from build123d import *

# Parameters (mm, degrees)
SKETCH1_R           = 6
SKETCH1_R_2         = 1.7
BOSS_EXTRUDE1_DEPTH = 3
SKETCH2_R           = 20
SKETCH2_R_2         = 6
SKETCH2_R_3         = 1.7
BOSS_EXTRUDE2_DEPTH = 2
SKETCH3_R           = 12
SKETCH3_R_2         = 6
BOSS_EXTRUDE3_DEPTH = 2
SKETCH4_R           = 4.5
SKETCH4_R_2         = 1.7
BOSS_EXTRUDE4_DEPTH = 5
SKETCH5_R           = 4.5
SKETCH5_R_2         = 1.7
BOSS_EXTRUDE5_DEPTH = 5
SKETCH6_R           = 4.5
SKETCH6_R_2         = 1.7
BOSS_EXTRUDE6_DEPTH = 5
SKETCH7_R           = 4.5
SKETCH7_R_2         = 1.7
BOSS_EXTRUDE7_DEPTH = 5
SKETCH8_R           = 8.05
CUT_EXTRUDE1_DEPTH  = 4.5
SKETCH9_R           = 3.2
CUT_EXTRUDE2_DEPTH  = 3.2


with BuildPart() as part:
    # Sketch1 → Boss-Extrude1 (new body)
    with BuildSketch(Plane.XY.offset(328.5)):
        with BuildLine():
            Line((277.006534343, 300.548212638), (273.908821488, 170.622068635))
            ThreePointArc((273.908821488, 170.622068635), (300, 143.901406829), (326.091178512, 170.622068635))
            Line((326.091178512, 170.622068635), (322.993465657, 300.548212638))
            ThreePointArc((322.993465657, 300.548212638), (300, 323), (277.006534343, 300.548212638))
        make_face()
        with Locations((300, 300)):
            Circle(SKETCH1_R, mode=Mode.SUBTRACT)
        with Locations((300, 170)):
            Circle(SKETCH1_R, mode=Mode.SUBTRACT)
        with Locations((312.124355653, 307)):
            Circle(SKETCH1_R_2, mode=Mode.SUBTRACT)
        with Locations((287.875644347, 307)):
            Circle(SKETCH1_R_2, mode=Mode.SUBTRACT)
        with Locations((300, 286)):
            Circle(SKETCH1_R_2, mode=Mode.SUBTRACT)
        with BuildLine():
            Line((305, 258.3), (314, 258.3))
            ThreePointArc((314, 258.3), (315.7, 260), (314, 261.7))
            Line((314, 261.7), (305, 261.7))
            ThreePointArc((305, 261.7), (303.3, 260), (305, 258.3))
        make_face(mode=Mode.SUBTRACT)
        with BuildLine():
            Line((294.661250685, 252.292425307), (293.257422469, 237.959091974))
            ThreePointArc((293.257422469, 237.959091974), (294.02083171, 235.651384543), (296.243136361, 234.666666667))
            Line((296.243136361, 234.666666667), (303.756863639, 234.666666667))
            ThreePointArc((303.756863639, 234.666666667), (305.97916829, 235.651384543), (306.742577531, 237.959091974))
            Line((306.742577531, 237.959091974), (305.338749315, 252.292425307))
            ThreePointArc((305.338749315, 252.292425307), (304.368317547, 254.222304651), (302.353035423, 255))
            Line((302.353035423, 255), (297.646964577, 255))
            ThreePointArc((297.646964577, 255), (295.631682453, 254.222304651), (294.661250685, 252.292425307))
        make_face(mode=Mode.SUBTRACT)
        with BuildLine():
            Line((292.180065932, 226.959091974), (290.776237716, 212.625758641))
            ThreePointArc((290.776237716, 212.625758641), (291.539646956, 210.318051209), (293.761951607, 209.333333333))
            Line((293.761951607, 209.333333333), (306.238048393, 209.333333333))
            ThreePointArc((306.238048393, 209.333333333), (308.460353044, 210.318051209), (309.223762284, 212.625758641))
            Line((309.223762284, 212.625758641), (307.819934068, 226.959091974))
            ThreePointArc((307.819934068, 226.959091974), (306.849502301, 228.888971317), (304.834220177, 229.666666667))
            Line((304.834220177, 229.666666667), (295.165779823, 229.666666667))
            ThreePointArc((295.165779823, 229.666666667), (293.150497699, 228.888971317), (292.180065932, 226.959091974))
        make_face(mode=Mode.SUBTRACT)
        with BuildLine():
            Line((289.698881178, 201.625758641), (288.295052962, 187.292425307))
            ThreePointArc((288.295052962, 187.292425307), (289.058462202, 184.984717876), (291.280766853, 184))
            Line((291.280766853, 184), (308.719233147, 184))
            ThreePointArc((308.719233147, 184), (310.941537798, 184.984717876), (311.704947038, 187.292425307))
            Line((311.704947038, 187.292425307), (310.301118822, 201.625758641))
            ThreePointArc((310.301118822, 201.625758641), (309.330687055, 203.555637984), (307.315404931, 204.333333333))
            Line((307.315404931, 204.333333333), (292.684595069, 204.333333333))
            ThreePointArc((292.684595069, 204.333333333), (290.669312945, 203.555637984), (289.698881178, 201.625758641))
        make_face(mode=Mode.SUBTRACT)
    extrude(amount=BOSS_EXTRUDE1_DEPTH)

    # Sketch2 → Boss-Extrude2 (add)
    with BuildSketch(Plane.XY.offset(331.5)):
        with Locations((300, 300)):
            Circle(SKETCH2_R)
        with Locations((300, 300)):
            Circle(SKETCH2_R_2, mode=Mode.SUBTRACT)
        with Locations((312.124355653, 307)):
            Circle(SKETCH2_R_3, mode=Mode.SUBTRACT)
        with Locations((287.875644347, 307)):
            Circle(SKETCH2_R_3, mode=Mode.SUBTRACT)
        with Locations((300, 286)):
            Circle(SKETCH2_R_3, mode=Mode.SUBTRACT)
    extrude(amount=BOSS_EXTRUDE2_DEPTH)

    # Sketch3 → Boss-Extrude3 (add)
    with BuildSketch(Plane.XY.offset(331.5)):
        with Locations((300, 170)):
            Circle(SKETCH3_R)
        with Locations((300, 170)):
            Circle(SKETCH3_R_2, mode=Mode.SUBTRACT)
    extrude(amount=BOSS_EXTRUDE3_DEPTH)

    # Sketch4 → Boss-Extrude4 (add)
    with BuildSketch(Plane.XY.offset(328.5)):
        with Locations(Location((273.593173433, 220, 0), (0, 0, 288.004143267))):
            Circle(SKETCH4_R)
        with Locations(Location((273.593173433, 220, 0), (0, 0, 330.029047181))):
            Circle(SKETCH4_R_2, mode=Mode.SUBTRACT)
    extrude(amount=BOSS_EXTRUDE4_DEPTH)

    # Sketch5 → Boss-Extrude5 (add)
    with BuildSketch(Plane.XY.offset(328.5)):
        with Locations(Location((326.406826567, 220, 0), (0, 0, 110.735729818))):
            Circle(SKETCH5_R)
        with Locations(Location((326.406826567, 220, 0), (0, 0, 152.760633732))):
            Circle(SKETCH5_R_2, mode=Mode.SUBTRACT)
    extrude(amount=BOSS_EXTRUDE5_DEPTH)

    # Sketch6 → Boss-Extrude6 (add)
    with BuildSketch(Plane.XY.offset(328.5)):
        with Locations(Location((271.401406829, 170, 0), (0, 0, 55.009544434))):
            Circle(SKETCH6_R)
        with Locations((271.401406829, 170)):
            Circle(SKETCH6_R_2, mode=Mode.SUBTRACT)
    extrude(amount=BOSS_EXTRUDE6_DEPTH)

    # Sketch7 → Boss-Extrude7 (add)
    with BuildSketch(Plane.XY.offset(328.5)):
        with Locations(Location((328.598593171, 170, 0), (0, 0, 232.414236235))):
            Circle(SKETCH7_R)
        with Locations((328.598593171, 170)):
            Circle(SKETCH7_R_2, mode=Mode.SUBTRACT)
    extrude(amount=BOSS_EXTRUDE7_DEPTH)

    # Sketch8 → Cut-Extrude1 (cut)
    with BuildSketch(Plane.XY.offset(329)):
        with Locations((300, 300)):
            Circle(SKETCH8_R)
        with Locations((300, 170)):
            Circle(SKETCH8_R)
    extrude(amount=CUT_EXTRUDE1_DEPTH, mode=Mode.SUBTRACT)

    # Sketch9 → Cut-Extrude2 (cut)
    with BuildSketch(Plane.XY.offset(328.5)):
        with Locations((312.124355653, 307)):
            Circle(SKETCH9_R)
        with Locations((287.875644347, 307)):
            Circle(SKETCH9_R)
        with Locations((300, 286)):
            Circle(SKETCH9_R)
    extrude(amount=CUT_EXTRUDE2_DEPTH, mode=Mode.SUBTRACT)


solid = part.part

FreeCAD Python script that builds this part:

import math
import FreeCAD as App
import Part
import Sketcher

V = App.Vector
Q = App.Units.Quantity

doc = App.newDocument("Part")
body = doc.addObject("PartDesign::Body", "Body")

# Sketch on XY plane
sketch1 = body.newObject("Sketcher::SketchObject", "Sketch")
sketch1.AttachmentSupport = (doc.getObject("XY_Plane"), [""])
sketch1.MapMode = "FlatFace"
sketch1.AttachmentOffset = App.Placement(V(0, 0, 328.5), App.Rotation())
sketch1.addGeometry([
    Part.LineSegment(V(277, 300.5, 0), V(273.9, 170.6, 0)),  # 0
    Part.ArcOfCircle(Part.Circle(V(300, 170, 0), V(0, 0, 1), 26.1), math.radians(179), math.radians(361)),  # 1
    Part.LineSegment(V(326.1, 170.6, 0), V(323, 300.5, 0)),  # 2
    Part.ArcOfCircle(Part.Circle(V(300, 300, 0), V(0, 0, 1), 23), math.radians(1), math.radians(179)),  # 3
    Part.Circle(V(300, 170, 0), V(0, 0, 1), 6),  # 4
    Part.LineSegment(V(288.3, 187.3, 0), V(289.7, 201.6, 0)),  # 5
    Part.ArcOfCircle(Part.Circle(V(292.7, 201.3, 0), V(0, 0, 1), 3), math.radians(90), math.radians(174)),  # 6
    Part.LineSegment(V(292.7, 204.3, 0), V(307.3, 204.3, 0)),  # 7
    Part.ArcOfCircle(Part.Circle(V(307.3, 201.3, 0), V(0, 0, 1), 3), math.radians(6), math.radians(90)),  # 8
    Part.LineSegment(V(310.3, 201.6, 0), V(311.7, 187.3, 0)),  # 9
    Part.ArcOfCircle(Part.Circle(V(308.7, 187, 0), V(0, 0, 1), 3), math.radians(-90), math.radians(6)),  # 10
    Part.LineSegment(V(308.7, 184, 0), V(291.3, 184, 0)),  # 11
    Part.ArcOfCircle(Part.Circle(V(291.3, 187, 0), V(0, 0, 1), 3), math.radians(174), math.radians(270)),  # 12
    Part.LineSegment(V(290.8, 212.6, 0), V(292.2, 227, 0)),  # 13
    Part.ArcOfCircle(Part.Circle(V(295.2, 226.7, 0), V(0, 0, 1), 3), math.radians(90), math.radians(174)),  # 14
    Part.LineSegment(V(295.2, 229.7, 0), V(304.8, 229.7, 0)),  # 15
    Part.ArcOfCircle(Part.Circle(V(304.8, 226.7, 0), V(0, 0, 1), 3), math.radians(6), math.radians(90)),  # 16
    Part.LineSegment(V(307.8, 227, 0), V(309.2, 212.6, 0)),  # 17
    Part.ArcOfCircle(Part.Circle(V(306.2, 212.3, 0), V(0, 0, 1), 3), math.radians(-90), math.radians(6)),  # 18
    Part.LineSegment(V(306.2, 209.3, 0), V(293.8, 209.3, 0)),  # 19
    Part.ArcOfCircle(Part.Circle(V(293.8, 212.3, 0), V(0, 0, 1), 3), math.radians(174), math.radians(270)),  # 20
    Part.LineSegment(V(293.3, 238, 0), V(294.7, 252.3, 0)),  # 21
    Part.ArcOfCircle(Part.Circle(V(297.6, 252, 0), V(0, 0, 1), 3), math.radians(90), math.radians(174)),  # 22
    Part.LineSegment(V(297.6, 255, 0), V(302.4, 255, 0)),  # 23
    Part.ArcOfCircle(Part.Circle(V(302.4, 252, 0), V(0, 0, 1), 3), math.radians(6), math.radians(90)),  # 24
    Part.LineSegment(V(305.3, 252.3, 0), V(306.7, 238, 0)),  # 25
    Part.ArcOfCircle(Part.Circle(V(303.8, 237.7, 0), V(0, 0, 1), 3), math.radians(-90), math.radians(6)),  # 26
    Part.LineSegment(V(303.8, 234.7, 0), V(296.2, 234.7, 0)),  # 27
    Part.ArcOfCircle(Part.Circle(V(296.2, 237.7, 0), V(0, 0, 1), 3), math.radians(174), math.radians(270)),  # 28
    Part.Circle(V(287.9, 307, 0), V(0, 0, 1), 1.7),  # 29
    Part.Circle(V(300, 286, 0), V(0, 0, 1), 1.7),  # 30
    Part.Circle(V(300, 300, 0), V(0, 0, 1), 6),  # 31
    Part.LineSegment(V(314, 258.3, 0), V(305, 258.3, 0)),  # 32
    Part.ArcOfCircle(Part.Circle(V(305, 260, 0), V(0, 0, 1), 1.7), math.radians(90), math.radians(270)),  # 33
    Part.LineSegment(V(305, 261.7, 0), V(314, 261.7, 0)),  # 34
    Part.ArcOfCircle(Part.Circle(V(314, 260, 0), V(0, 0, 1), 1.7), math.radians(-90), math.radians(90)),  # 35
    Part.Circle(V(312.1, 307, 0), V(0, 0, 1), 1.7),  # 36
], False)
sketch1.addConstraint([
    Sketcher.Constraint("Tangent", 0, 2, 1, 1),
    Sketcher.Constraint("Tangent", 1, 2, 2, 1),
    Sketcher.Constraint("Tangent", 2, 2, 3, 1),
    Sketcher.Constraint("Tangent", 3, 2, 0, 1),
    Sketcher.Constraint("Tangent", 5, 2, 6, 2),
    Sketcher.Constraint("Tangent", 6, 1, 7, 1),
    Sketcher.Constraint("Tangent", 7, 2, 8, 2),
    Sketcher.Constraint("Tangent", 8, 1, 9, 1),
    Sketcher.Constraint("Tangent", 9, 2, 10, 2),
    Sketcher.Constraint("Tangent", 10, 1, 11, 1),
    Sketcher.Constraint("Tangent", 11, 2, 12, 2),
    Sketcher.Constraint("Tangent", 12, 1, 5, 1),
    Sketcher.Constraint("Tangent", 13, 2, 14, 2),
    Sketcher.Constraint("Tangent", 14, 1, 15, 1),
    Sketcher.Constraint("Tangent", 15, 2, 16, 2),
    Sketcher.Constraint("Tangent", 16, 1, 17, 1),
    Sketcher.Constraint("Tangent", 17, 2, 18, 2),
    Sketcher.Constraint("Tangent", 18, 1, 19, 1),
    Sketcher.Constraint("Tangent", 19, 2, 20, 2),
    Sketcher.Constraint("Tangent", 20, 1, 13, 1),
    Sketcher.Constraint("Tangent", 21, 2, 22, 2),
    Sketcher.Constraint("Tangent", 22, 1, 23, 1),
    Sketcher.Constraint("Tangent", 23, 2, 24, 2),
    Sketcher.Constraint("Tangent", 24, 1, 25, 1),
    Sketcher.Constraint("Tangent", 25, 2, 26, 2),
    Sketcher.Constraint("Tangent", 26, 1, 27, 1),
    Sketcher.Constraint("Tangent", 27, 2, 28, 2),
    Sketcher.Constraint("Tangent", 28, 1, 21, 1),
    Sketcher.Constraint("Tangent", 32, 2, 33, 2),
    Sketcher.Constraint("Tangent", 33, 1, 34, 1),
    Sketcher.Constraint("Tangent", 34, 2, 35, 2),
    Sketcher.Constraint("Tangent", 35, 1, 32, 1),
    Sketcher.Constraint("Horizontal", 7),
    Sketcher.Constraint("Horizontal", 11),
    Sketcher.Constraint("Horizontal", 15),
    Sketcher.Constraint("Horizontal", 19),
    Sketcher.Constraint("Horizontal", 23),
    Sketcher.Constraint("Horizontal", 27),
    Sketcher.Constraint("Horizontal", 32),
    Sketcher.Constraint("Horizontal", 34),
    Sketcher.Constraint("Coincident", 4, 3, 1, 3),
    Sketcher.Constraint("Coincident", 31, 3, 3, 3),
    Sketcher.Constraint("Equal", 6, 8),
    Sketcher.Constraint("Equal", 8, 10),
    Sketcher.Constraint("Equal", 10, 12),
    Sketcher.Constraint("Equal", 12, 14),
    Sketcher.Constraint("Equal", 14, 16),
    Sketcher.Constraint("Equal", 16, 18),
    Sketcher.Constraint("Equal", 18, 20),
    Sketcher.Constraint("Equal", 20, 22),
    Sketcher.Constraint("Equal", 22, 24),
    Sketcher.Constraint("Equal", 24, 26),
    Sketcher.Constraint("Equal", 26, 28),
    Sketcher.Constraint("Equal", 29, 30),
    Sketcher.Constraint("Equal", 4, 31),
    Sketcher.Constraint("Equal", 30, 33),
    Sketcher.Constraint("Equal", 35, 36),
    Sketcher.Constraint("Parallel", 5, 13),
    Sketcher.Constraint("Parallel", 9, 17),
    Sketcher.Constraint("Parallel", 13, 21),
    Sketcher.Constraint("Parallel", 17, 25),
    Sketcher.Constraint("Horizontal", 29, 3, 36, 3),
    Sketcher.Constraint("Horizontal", 0, 2, 1, 2),
    Sketcher.Constraint("Horizontal", 5, 2, 8, 1),
    Sketcher.Constraint("Vertical", 4, 3, 30, 3),
    Sketcher.Constraint("Equal", 9, 13),
    Sketcher.Constraint("Equal", 17, 21),
    Sketcher.Constraint("Diameter", 4, Q("12 mm")),
    Sketcher.Constraint("Radius", 3, Q("23 mm")),
    Sketcher.Constraint("Radius", 6, Q("3 mm")),
    Sketcher.Constraint("Diameter", 29, Q("3.4 mm")),
    Sketcher.Constraint("DistanceX", 32, 2, 32, 1, Q("9 mm")),
    Sketcher.Constraint("DistanceX", -1, 1, 1, 3, Q("300 mm")),
    Sketcher.Constraint("DistanceY", -1, 1, 1, 3, Q("170 mm")),
    Sketcher.Constraint("DistanceY", -1, 1, 3, 3, Q("300 mm")),
    Sketcher.Constraint("DistanceY", -1, 1, 10, 3, Q("187 mm")),
    Sketcher.Constraint("DistanceY", -1, 1, 22, 3, Q("252 mm")),
    Sketcher.Constraint("DistanceY", -1, 1, 29, 3, Q("307 mm")),
    Sketcher.Constraint("DistanceY", -1, 1, 30, 3, Q("286 mm")),
    Sketcher.Constraint("DistanceX", -1, 1, 33, 3, Q("305 mm")),
    Sketcher.Constraint("DistanceY", -1, 1, 33, 3, Q("260 mm")),
    Sketcher.Constraint("DistanceY", 8, 3, 18, 3, Q("11 mm")),
    Sketcher.Constraint("DistanceY", 16, 3, 26, 3, Q("11 mm")),
    Sketcher.Constraint("Radius", 1, Q("26.098593 mm")),
    Sketcher.Constraint("DistanceX", 7, 1, 7, 2, Q("14.63081 mm")),
    Sketcher.Constraint("DistanceX", 15, 1, 15, 2, Q("9.66844 mm")),
    Sketcher.Constraint("DistanceX", 23, 1, 23, 2, Q("4.706071 mm")),
    Sketcher.Constraint("DistanceX", 22, 3, 26, 3, Q("6.109899 mm")),
    Sketcher.Constraint("DistanceX", -1, 1, 14, 3, Q("295.16578 mm")),
    Sketcher.Constraint("DistanceX", -1, 1, 5, 2, Q("289.698881 mm")),
    Sketcher.Constraint("DistanceX", -1, 1, 21, 2, Q("294.661251 mm")),
    Sketcher.Constraint("DistanceX", 29, 3, 22, 3, Q("9.77132 mm")),
    Sketcher.Constraint("DistanceX", 29, 3, 36, 3, Q("24.248711 mm")),
])
pad1 = body.newObject("PartDesign::Pad", "Pad")
pad1.Profile = sketch1
pad1.Length = 3

# Sketch on XY plane
sketch2 = body.newObject("Sketcher::SketchObject", "Sketch001")
sketch2.AttachmentSupport = (doc.getObject("XY_Plane"), [""])
sketch2.MapMode = "FlatFace"
sketch2.AttachmentOffset = App.Placement(V(0, 0, 331.5), App.Rotation())
sketch2.addGeometry([
    Part.Circle(V(300, 300, 0), V(0, 0, 1), 20),  # 0
    Part.Circle(V(300, 286, 0), V(0, 0, 1), 1.7),  # 1
    Part.Circle(V(287.9, 307, 0), V(0, 0, 1), 1.7),  # 2
    Part.Circle(V(300, 300, 0), V(0, 0, 1), 6),  # 3
    Part.Circle(V(312.1, 307, 0), V(0, 0, 1), 1.7),  # 4
], False)
sketch2.addConstraint([
    Sketcher.Constraint("Coincident", 3, 3, 0, 3),
    Sketcher.Constraint("Equal", 1, 2),
    Sketcher.Constraint("Equal", 2, 4),
    Sketcher.Constraint("Horizontal", 2, 3, 4, 3),
    Sketcher.Constraint("Vertical", 0, 3, 1, 3),
    Sketcher.Constraint("Diameter", 0, Q("40 mm")),
    Sketcher.Constraint("Diameter", 3, Q("12 mm")),
    Sketcher.Constraint("Diameter", 1, Q("3.4 mm")),
    Sketcher.Constraint("DistanceX", -1, 1, 0, 3, Q("300 mm")),
    Sketcher.Constraint("DistanceY", -1, 1, 0, 3, Q("300 mm")),
    Sketcher.Constraint("DistanceY", -1, 1, 1, 3, Q("286 mm")),
    Sketcher.Constraint("DistanceY", -1, 1, 2, 3, Q("307 mm")),
    Sketcher.Constraint("DistanceX", 2, 3, 4, 3, Q("24.248711 mm")),
    Sketcher.Constraint("DistanceX", -1, 1, 2, 3, Q("287.875644 mm")),
])
pad2 = body.newObject("PartDesign::Pad", "Pad001")
pad2.Profile = sketch2
pad2.Length = 2

# Sketch on XY plane
sketch3 = body.newObject("Sketcher::SketchObject", "Sketch002")
sketch3.AttachmentSupport = (doc.getObject("XY_Plane"), [""])
sketch3.MapMode = "FlatFace"
sketch3.AttachmentOffset = App.Placement(V(0, 0, 331.5), App.Rotation())
sketch3.addGeometry([
    Part.Circle(V(300, 170, 0), V(0, 0, 1), 12),
    Part.Circle(V(300, 170, 0), V(0, 0, 1), 6),
], False)
sketch3.addConstraint([
    Sketcher.Constraint("Coincident", 1, 3, 0, 3),
    Sketcher.Constraint("Diameter", 0, Q("24 mm")),
    Sketcher.Constraint("Diameter", 1, Q("12 mm")),
    Sketcher.Constraint("DistanceX", -1, 1, 0, 3, Q("300 mm")),
    Sketcher.Constraint("DistanceY", -1, 1, 0, 3, Q("170 mm")),
])
pad3 = body.newObject("PartDesign::Pad", "Pad002")
pad3.Profile = sketch3
pad3.Length = 2

# Sketch on XY plane
sketch4 = body.newObject("Sketcher::SketchObject", "Sketch003")
sketch4.AttachmentSupport = (doc.getObject("XY_Plane"), [""])
sketch4.MapMode = "FlatFace"
sketch4.AttachmentOffset = App.Placement(V(0, 0, 328.5), App.Rotation())
sketch4.addGeometry([
    Part.Circle(V(273.6, 220, 0), V(0, 0, 1), 4.5),
    Part.Circle(V(273.6, 220, 0), V(0, 0, 1), 1.7),
], False)
sketch4.addConstraint([
    Sketcher.Constraint("Coincident", 1, 3, 0, 3),
    Sketcher.Constraint("Diameter", 0, Q("9 mm")),
    Sketcher.Constraint("Diameter", 1, Q("3.4 mm")),
    Sketcher.Constraint("DistanceY", -1, 1, 0, 3, Q("220 mm")),
    Sketcher.Constraint("DistanceX", -1, 1, 0, 3, Q("273.593173 mm")),
])
pad4 = body.newObject("PartDesign::Pad", "Pad003")
pad4.Profile = sketch4
pad4.Length = 5

# Sketch on XY plane
sketch5 = body.newObject("Sketcher::SketchObject", "Sketch004")
sketch5.AttachmentSupport = (doc.getObject("XY_Plane"), [""])
sketch5.MapMode = "FlatFace"
sketch5.AttachmentOffset = App.Placement(V(0, 0, 328.5), App.Rotation())
sketch5.addGeometry([
    Part.Circle(V(326.4, 220, 0), V(0, 0, 1), 4.5),
    Part.Circle(V(326.4, 220, 0), V(0, 0, 1), 1.7),
], False)
sketch5.addConstraint([
    Sketcher.Constraint("Coincident", 1, 3, 0, 3),
    Sketcher.Constraint("Diameter", 0, Q("9 mm")),
    Sketcher.Constraint("Diameter", 1, Q("3.4 mm")),
    Sketcher.Constraint("DistanceY", -1, 1, 0, 3, Q("220 mm")),
    Sketcher.Constraint("DistanceX", -1, 1, 0, 3, Q("326.406827 mm")),
])
pad5 = body.newObject("PartDesign::Pad", "Pad004")
pad5.Profile = sketch5
pad5.Length = 5

# Sketch on XY plane
sketch6 = body.newObject("Sketcher::SketchObject", "Sketch005")
sketch6.AttachmentSupport = (doc.getObject("XY_Plane"), [""])
sketch6.MapMode = "FlatFace"
sketch6.AttachmentOffset = App.Placement(V(0, 0, 328.5), App.Rotation())
sketch6.addGeometry([
    Part.Circle(V(271.4, 170, 0), V(0, 0, 1), 4.5),
    Part.Circle(V(271.4, 170, 0), V(0, 0, 1), 1.7),
], False)
sketch6.addConstraint([
    Sketcher.Constraint("Coincident", 1, 3, 0, 3),
    Sketcher.Constraint("Diameter", 0, Q("9 mm")),
    Sketcher.Constraint("Diameter", 1, Q("3.4 mm")),
    Sketcher.Constraint("DistanceY", -1, 1, 0, 3, Q("170 mm")),
    Sketcher.Constraint("DistanceX", -1, 1, 0, 3, Q("271.401407 mm")),
])
pad6 = body.newObject("PartDesign::Pad", "Pad005")
pad6.Profile = sketch6
pad6.Length = 5

# Sketch on XY plane
sketch7 = body.newObject("Sketcher::SketchObject", "Sketch006")
sketch7.AttachmentSupport = (doc.getObject("XY_Plane"), [""])
sketch7.MapMode = "FlatFace"
sketch7.AttachmentOffset = App.Placement(V(0, 0, 328.5), App.Rotation())
sketch7.addGeometry([
    Part.Circle(V(328.6, 170, 0), V(0, 0, 1), 4.5),
    Part.Circle(V(328.6, 170, 0), V(0, 0, 1), 1.7),
], False)
sketch7.addConstraint([
    Sketcher.Constraint("Coincident", 1, 3, 0, 3),
    Sketcher.Constraint("Diameter", 0, Q("9 mm")),
    Sketcher.Constraint("Diameter", 1, Q("3.4 mm")),
    Sketcher.Constraint("DistanceY", -1, 1, 0, 3, Q("170 mm")),
    Sketcher.Constraint("DistanceX", -1, 1, 0, 3, Q("328.598593 mm")),
])
pad7 = body.newObject("PartDesign::Pad", "Pad006")
pad7.Profile = sketch7
pad7.Length = 5

# Sketch on XY plane
sketch8 = body.newObject("Sketcher::SketchObject", "Sketch007")
sketch8.AttachmentSupport = (doc.getObject("XY_Plane"), [""])
sketch8.MapMode = "FlatFace"
sketch8.AttachmentOffset = App.Placement(V(0, 0, 329), App.Rotation())
sketch8.addGeometry([
    Part.Circle(V(300, 300, 0), V(0, 0, 1), 8),
    Part.Circle(V(300, 170, 0), V(0, 0, 1), 8),
], False)
sketch8.addConstraint([
    Sketcher.Constraint("Equal", 0, 1),
    Sketcher.Constraint("Vertical", 0, 3, 1, 3),
    Sketcher.Constraint("Diameter", 0, Q("16.1 mm")),
    Sketcher.Constraint("DistanceX", -1, 1, 0, 3, Q("300 mm")),
    Sketcher.Constraint("DistanceY", -1, 1, 0, 3, Q("300 mm")),
    Sketcher.Constraint("DistanceY", -1, 1, 1, 3, Q("170 mm")),
])
pocket1 = body.newObject("PartDesign::Pocket", "Pocket")
pocket1.Profile = sketch8
pocket1.Length = 4.5
pocket1.Reversed = True

# Sketch on XY plane
sketch9 = body.newObject("Sketcher::SketchObject", "Sketch008")
sketch9.AttachmentSupport = (doc.getObject("XY_Plane"), [""])
sketch9.MapMode = "FlatFace"
sketch9.AttachmentOffset = App.Placement(V(0, 0, 328.5), App.Rotation())
sketch9.addGeometry([
    Part.Circle(V(312.1, 307, 0), V(0, 0, 1), 3.2),
    Part.Circle(V(287.9, 307, 0), V(0, 0, 1), 3.2),
    Part.Circle(V(300, 286, 0), V(0, 0, 1), 3.2),
], False)
sketch9.addConstraint([
    Sketcher.Constraint("Equal", 0, 1),
    Sketcher.Constraint("Equal", 1, 2),
    Sketcher.Constraint("Horizontal", 0, 3, 1, 3),
    Sketcher.Constraint("Diameter", 0, Q("6.4 mm")),
    Sketcher.Constraint("DistanceY", -1, 1, 0, 3, Q("307 mm")),
    Sketcher.Constraint("DistanceX", -1, 1, 2, 3, Q("300 mm")),
    Sketcher.Constraint("DistanceY", -1, 1, 2, 3, Q("286 mm")),
    Sketcher.Constraint("DistanceX", 1, 3, 0, 3, Q("24.248711 mm")),
    Sketcher.Constraint("DistanceX", -1, 1, 0, 3, Q("312.124356 mm")),
])
pocket2 = body.newObject("PartDesign::Pocket", "Pocket001")
pocket2.Profile = sketch9
pocket2.Length = 3.2
pocket2.Reversed = True

doc.recompute()
